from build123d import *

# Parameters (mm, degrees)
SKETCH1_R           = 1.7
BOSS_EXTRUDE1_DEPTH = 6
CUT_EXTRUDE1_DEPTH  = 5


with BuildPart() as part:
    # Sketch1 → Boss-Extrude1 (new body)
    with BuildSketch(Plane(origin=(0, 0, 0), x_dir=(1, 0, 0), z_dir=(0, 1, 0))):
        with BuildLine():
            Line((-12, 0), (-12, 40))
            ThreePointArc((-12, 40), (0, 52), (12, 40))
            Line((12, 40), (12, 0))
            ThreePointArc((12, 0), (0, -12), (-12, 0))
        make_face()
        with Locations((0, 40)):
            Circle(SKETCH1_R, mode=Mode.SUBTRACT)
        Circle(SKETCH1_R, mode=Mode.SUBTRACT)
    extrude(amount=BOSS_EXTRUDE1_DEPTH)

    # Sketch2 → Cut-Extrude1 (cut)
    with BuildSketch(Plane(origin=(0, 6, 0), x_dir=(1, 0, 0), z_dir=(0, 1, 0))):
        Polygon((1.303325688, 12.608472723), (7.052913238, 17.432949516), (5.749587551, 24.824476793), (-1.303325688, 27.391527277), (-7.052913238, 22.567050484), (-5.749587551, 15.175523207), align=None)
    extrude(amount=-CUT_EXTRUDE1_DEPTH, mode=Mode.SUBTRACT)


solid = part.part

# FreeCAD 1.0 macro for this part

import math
import FreeCAD as App
import Part
import Sketcher
from FreeCAD import Vector
Q = App.Units.Quantity

doc = App.newDocument("Part")
body = doc.addObject("PartDesign::Body", "Body")

# Sketch on XZ plane
sketch1 = body.newObject("Sketcher::SketchObject", "Sketch")
sketch1.AttachmentSupport = (doc.getObject("XZ_Plane"), [""])
sketch1.MapMode = "FlatFace"
sketch1.addGeometry([
    Part.LineSegment(Vector(-12, -40, 0), Vector(-12, 0, 0)),  # 0
    Part.ArcOfCircle(Part.Circle(Vector(0, 0, 0), Vector(0, 0, 1), 12), math.radians(0), math.radians(180)),  # 1
    Part.LineSegment(Vector(12, 0, 0), Vector(12, -40, 0)),  # 2
    Part.ArcOfCircle(Part.Circle(Vector(0, -40, 0), Vector(0, 0, 1), 12), math.radians(180), math.radians(360)),  # 3
    Part.Circle(Vector(0, 0, 0), Vector(0, 0, 1), 1.7),  # 4
    Part.Circle(Vector(0, -40, 0), Vector(0, 0, 1), 1.7),  # 5
], False)
sketch1.addConstraint([
    Sketcher.Constraint("Tangent", 0, 2, 1, 2),
    Sketcher.Constraint("Tangent", 1, 1, 2, 1),
    Sketcher.Constraint("Tangent", 2, 2, 3, 2),
    Sketcher.Constraint("Tangent", 3, 1, 0, 1),
    Sketcher.Constraint("Vertical", 0),
    Sketcher.Constraint("Vertical", 2),
    Sketcher.Constraint("Coincident", 1, 3, -1, 1),
    Sketcher.Constraint("Coincident", 4, 3, -1, 1),
    Sketcher.Constraint("Coincident", 5, 3, 3, 3),
    Sketcher.Constraint("Equal", 4, 5),
    Sketcher.Constraint("Radius", 1, 12.0),
    Sketcher.Constraint("Diameter", 4, 3.4),
    Sketcher.Constraint("DistanceY", 0, 1, 0, 2, 40.0),
])
pad1 = body.newObject("PartDesign::Pad", "Pad")
pad1.Profile = sketch1
pad1.Length = 6
pad1.Reversed = True

# Sketch on XZ plane
sketch2 = body.newObject("Sketcher::SketchObject", "Sketch001")
sketch2.AttachmentSupport = (doc.getObject("XZ_Plane"), [""])
sketch2.MapMode = "FlatFace"
sketch2.AttachmentOffset = App.Placement(Vector(0, 0, -6), App.Rotation())
sketch2.addGeometry([
    Part.LineSegment(Vector(1.303326, -12.608473, 0), Vector(7.052913, -17.43295, 0)),  # 0
    Part.LineSegment(Vector(7.052913, -17.43295, 0), Vector(5.749588, -24.824477, 0)),  # 1
    Part.LineSegment(Vector(5.749588, -24.824477, 0), Vector(-1.303326, -27.391527, 0)),  # 2
    Part.LineSegment(Vector(-1.303326, -27.391527, 0), Vector(-7.052913, -22.56705, 0)),  # 3
    Part.LineSegment(Vector(-7.052913, -22.56705, 0), Vector(-5.749588, -15.175523, 0)),  # 4
    Part.LineSegment(Vector(-5.749588, -15.175523, 0), Vector(1.303326, -12.608473, 0)),  # 5
], False)
sketch2.addConstraint([
    Sketcher.Constraint("Coincident", 0, 2, 1, 1),
    Sketcher.Constraint("Coincident", 1, 2, 2, 1),
    Sketcher.Constraint("Coincident", 2, 2, 3, 1),
    Sketcher.Constraint("Coincident", 3, 2, 4, 1),
    Sketcher.Constraint("Coincident", 4, 2, 5, 1),
    Sketcher.Constraint("Coincident", 5, 2, 0, 1),
    Sketcher.Constraint("Parallel", 0, 3),
    Sketcher.Constraint("Parallel", 1, 4),
    Sketcher.Constraint("Parallel", 2, 5),
    Sketcher.Constraint("Equal", 0, 1),
    Sketcher.Constraint("Equal", 1, 2),
    Sketcher.Constraint("Equal", 2, 3),
    Sketcher.Constraint("Angle", 0, Q("-40 deg")),
    Sketcher.Constraint("Angle", 1, Q("-100 deg")),
    Sketcher.Constraint("Angle", 2, Q("-160 deg")),
    Sketcher.Constraint("DistanceX", 3, 2, 1, 2, 12.802501),
    Sketcher.Constraint("DistanceY", 0, 2, -1, 1, 17.43295),
    Sketcher.Constraint("DistanceX", -1, 1, 0, 2, 7.052913),
])
pocket1 = body.newObject("PartDesign::Pocket", "Pocket")
pocket1.Profile = sketch2
pocket1.Length = 5
pocket1.Reversed = True

doc.recompute()
